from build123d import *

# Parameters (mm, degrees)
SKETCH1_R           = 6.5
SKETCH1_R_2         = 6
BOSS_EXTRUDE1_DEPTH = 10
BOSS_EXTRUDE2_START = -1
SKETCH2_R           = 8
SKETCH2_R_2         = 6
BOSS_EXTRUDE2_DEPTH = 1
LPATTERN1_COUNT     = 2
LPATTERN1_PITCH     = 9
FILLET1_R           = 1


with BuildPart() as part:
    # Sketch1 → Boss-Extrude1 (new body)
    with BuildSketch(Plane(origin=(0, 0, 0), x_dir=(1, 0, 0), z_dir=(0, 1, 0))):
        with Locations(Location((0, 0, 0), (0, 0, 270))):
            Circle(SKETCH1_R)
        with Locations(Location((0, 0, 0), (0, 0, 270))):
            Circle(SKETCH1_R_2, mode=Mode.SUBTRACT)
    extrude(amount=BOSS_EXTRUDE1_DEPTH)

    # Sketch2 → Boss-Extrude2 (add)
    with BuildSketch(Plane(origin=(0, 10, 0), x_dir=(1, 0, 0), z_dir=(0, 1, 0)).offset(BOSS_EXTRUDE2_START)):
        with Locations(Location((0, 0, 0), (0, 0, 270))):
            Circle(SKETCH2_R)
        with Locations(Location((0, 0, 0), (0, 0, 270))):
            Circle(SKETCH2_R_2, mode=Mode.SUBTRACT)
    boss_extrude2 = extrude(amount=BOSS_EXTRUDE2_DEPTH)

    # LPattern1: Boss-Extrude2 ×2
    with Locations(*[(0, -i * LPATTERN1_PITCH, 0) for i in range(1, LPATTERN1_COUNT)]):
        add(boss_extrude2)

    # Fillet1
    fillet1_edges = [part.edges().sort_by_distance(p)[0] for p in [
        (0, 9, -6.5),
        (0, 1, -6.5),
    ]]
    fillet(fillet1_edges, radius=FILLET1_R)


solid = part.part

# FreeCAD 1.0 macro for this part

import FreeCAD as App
import Part
import Sketcher


def edges_at(feature, points):
    """Names of the edges that pass closest to the given points."""
    edges = feature.Shape.Edges
    near = lambda p: min(range(len(edges)), key=lambda i: edges[i].distToShape(Part.Vertex(*p))[0])
    return sorted({f"Edge{near(p) + 1}" for p in points})

doc = App.newDocument("Part")
body = doc.addObject("PartDesign::Body", "Body")

sketch1 = doc.addObject("Sketcher::SketchObject", "Sketch")
body.addObject(sketch1)
sketch1.AttachmentSupport = (doc.XZ_Plane, [""])
sketch1.MapMode = "FlatFace"
sketch1.addGeometry([
    Part.Circle(App.Vector(0, 0, 0), App.Vector(0, 0, 1), 6.5),
    Part.Circle(App.Vector(0, 0, 0), App.Vector(0, 0, 1), 6),
], False)
sketch1.addConstraint([
    Sketcher.Constraint("Coincident", 0, 3, -1, 1),
    Sketcher.Constraint("Coincident", 1, 3, -1, 1),
    Sketcher.Constraint("Diameter", 0, 13.0),
    Sketcher.Constraint("Diameter", 1, 12.0),
])
pad1 = doc.addObject("PartDesign::Pad", "Pad")
body.addObject(pad1)
pad1.Profile = sketch1
pad1.Length = 10
pad1.Reversed = True

sketch2 = doc.addObject("Sketcher::SketchObject", "Sketch001")
body.addObject(sketch2)
sketch2.AttachmentSupport = (doc.XZ_Plane, [""])
sketch2.MapMode = "FlatFace"
sketch2.AttachmentOffset = App.Placement(App.Vector(0, 0, -9), App.Rotation())
sketch2.addGeometry([
    Part.Circle(App.Vector(0, 0, 0), App.Vector(0, 0, 1), 8),
    Part.Circle(App.Vector(0, 0, 0), App.Vector(0, 0, 1), 6),
], False)
sketch2.addConstraint([
    Sketcher.Constraint("Coincident", 0, 3, -1, 1),
    Sketcher.Constraint("Coincident", 1, 3, -1, 1),
    Sketcher.Constraint("Diameter", 0, 16.0),
    Sketcher.Constraint("Diameter", 1, 12.0),
])
pad2 = doc.addObject("PartDesign::Pad", "Pad001")
body.addObject(pad2)
pad2.Profile = sketch2
pad2.Length = 1
pad2.Reversed = True
doc.recompute()

linearpattern = doc.addObject("PartDesign::LinearPattern", "LinearPattern")
body.addObject(linearpattern)
linearpattern.Originals = [pad2]
linearpattern.Direction = (doc.Y_Axis, [""])
linearpattern.Mode = "offset"
linearpattern.Offset = 9
linearpattern.Occurrences = 2
linearpattern.Reversed = True
body.Tip = linearpattern
doc.recompute()

fillet = doc.addObject("PartDesign::Fillet", "Fillet")
body.addObject(fillet)
fillet.Base = (linearpattern, edges_at(linearpattern, [(0, 9, -6.5), (0, 1, -6.5)]))
fillet.Radius = 1

doc.recompute()
